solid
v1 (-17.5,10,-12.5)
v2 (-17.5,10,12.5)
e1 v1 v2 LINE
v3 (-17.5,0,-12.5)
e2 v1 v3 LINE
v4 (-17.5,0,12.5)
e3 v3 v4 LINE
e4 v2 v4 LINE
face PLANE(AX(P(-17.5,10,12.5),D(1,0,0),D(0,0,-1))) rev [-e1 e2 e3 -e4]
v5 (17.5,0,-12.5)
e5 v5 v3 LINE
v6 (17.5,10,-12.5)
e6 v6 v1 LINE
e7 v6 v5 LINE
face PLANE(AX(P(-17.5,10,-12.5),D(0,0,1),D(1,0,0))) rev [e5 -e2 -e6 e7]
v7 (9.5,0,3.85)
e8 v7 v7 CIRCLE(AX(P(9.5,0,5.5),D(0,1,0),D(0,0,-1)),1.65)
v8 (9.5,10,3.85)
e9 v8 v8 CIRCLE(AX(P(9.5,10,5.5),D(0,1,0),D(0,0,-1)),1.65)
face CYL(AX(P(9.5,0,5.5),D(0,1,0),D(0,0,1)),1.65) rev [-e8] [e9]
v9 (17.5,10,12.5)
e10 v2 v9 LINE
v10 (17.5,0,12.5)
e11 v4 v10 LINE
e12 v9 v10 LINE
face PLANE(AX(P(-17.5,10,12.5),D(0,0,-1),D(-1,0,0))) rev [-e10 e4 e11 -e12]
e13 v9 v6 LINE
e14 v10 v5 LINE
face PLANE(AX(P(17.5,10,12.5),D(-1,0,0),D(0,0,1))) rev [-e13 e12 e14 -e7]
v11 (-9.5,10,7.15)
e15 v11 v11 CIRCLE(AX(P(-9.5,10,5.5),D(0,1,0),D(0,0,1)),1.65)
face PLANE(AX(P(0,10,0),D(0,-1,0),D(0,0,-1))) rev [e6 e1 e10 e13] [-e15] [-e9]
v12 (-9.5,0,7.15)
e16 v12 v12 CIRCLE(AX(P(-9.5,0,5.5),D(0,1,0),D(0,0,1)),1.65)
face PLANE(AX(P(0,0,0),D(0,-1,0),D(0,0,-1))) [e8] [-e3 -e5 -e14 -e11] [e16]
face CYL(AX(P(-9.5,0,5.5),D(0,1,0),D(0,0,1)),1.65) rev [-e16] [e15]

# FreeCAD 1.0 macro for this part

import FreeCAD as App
import Part
import Sketcher
from FreeCAD import Vector


def add_polygon(sketch, points):
    """Adds a closed chain of lines whose ends are joined by coincident constraints."""
    first, n = sketch.GeometryCount, len(points)
    for a, b in zip(points, points[1:] + points[:1]):
        sketch.addGeometry(Part.LineSegment(App.Vector(*a, 0), App.Vector(*b, 0)), False)
    for i in range(n):
        sketch.addConstraint(Sketcher.Constraint("Coincident", first + i, 2, first + (i + 1) % n, 1))

doc = App.newDocument("Part")
body = doc.addObject("PartDesign::Body", "Body")

sketch1 = body.newObject("Sketcher::SketchObject", "Sketch")
sketch1.AttachmentSupport = (doc.getObject("XZ_Plane"), [""])
sketch1.MapMode = "FlatFace"
add_polygon(sketch1, [(-18, -12), (-18, 12), (18, 12), (18, -12)])
sketch1.addConstraint(Sketcher.Constraint("Vertical", 0))
sketch1.addConstraint(Sketcher.Constraint("Horizontal", 1))
sketch1.addConstraint(Sketcher.Constraint("Vertical", 2))
sketch1.addConstraint(Sketcher.Constraint("Horizontal", 3))
sketch1.addConstraint(Sketcher.Constraint("Symmetric", 0, 2, 2, 2, -1, 1))
sketch1.addConstraint(Sketcher.Constraint("DistanceX", 1, 1, 1, 2, 35.0))
sketch1.addConstraint(Sketcher.Constraint("DistanceY", 0, 1, 0, 2, 25.0))
pad1 = body.newObject("PartDesign::Pad", "Pad")
pad1.Profile = sketch1
pad1.Length = 10
pad1.Reversed = True

sketch2 = body.newObject("Sketcher::SketchObject", "Sketch001")
sketch2.AttachmentSupport = (doc.getObject("XZ_Plane"), [""])
sketch2.MapMode = "FlatFace"
sketch2.AttachmentOffset = App.Placement(Vector(0, 0, -10), App.Rotation())
sketch2.addGeometry(Part.Circle(Vector(9.5, 5.5, 0), Vector(0, 0, 1), 1.6), False)
sketch2.addGeometry(Part.Circle(Vector(-9.5, 5.5, 0), Vector(0, 0, 1), 1.6), False)
sketch2.addConstraint(Sketcher.Constraint("Equal", 0, 1))
sketch2.addConstraint(Sketcher.Constraint("Symmetric", 0, 3, 1, 3, -2))
sketch2.addConstraint(Sketcher.Constraint("Diameter", 0, 3.3))
sketch2.addConstraint(Sketcher.Constraint("DistanceX", 1, 3, 0, 3, 19.0))
sketch2.addConstraint(Sketcher.Constraint("DistanceY", -1, 1, 0, 3, 5.5))
pocket1 = body.newObject("PartDesign::Pocket", "Pocket")
pocket1.Profile = sketch2
pocket1.Length = 10
pocket1.Reversed = True

doc.recompute()
